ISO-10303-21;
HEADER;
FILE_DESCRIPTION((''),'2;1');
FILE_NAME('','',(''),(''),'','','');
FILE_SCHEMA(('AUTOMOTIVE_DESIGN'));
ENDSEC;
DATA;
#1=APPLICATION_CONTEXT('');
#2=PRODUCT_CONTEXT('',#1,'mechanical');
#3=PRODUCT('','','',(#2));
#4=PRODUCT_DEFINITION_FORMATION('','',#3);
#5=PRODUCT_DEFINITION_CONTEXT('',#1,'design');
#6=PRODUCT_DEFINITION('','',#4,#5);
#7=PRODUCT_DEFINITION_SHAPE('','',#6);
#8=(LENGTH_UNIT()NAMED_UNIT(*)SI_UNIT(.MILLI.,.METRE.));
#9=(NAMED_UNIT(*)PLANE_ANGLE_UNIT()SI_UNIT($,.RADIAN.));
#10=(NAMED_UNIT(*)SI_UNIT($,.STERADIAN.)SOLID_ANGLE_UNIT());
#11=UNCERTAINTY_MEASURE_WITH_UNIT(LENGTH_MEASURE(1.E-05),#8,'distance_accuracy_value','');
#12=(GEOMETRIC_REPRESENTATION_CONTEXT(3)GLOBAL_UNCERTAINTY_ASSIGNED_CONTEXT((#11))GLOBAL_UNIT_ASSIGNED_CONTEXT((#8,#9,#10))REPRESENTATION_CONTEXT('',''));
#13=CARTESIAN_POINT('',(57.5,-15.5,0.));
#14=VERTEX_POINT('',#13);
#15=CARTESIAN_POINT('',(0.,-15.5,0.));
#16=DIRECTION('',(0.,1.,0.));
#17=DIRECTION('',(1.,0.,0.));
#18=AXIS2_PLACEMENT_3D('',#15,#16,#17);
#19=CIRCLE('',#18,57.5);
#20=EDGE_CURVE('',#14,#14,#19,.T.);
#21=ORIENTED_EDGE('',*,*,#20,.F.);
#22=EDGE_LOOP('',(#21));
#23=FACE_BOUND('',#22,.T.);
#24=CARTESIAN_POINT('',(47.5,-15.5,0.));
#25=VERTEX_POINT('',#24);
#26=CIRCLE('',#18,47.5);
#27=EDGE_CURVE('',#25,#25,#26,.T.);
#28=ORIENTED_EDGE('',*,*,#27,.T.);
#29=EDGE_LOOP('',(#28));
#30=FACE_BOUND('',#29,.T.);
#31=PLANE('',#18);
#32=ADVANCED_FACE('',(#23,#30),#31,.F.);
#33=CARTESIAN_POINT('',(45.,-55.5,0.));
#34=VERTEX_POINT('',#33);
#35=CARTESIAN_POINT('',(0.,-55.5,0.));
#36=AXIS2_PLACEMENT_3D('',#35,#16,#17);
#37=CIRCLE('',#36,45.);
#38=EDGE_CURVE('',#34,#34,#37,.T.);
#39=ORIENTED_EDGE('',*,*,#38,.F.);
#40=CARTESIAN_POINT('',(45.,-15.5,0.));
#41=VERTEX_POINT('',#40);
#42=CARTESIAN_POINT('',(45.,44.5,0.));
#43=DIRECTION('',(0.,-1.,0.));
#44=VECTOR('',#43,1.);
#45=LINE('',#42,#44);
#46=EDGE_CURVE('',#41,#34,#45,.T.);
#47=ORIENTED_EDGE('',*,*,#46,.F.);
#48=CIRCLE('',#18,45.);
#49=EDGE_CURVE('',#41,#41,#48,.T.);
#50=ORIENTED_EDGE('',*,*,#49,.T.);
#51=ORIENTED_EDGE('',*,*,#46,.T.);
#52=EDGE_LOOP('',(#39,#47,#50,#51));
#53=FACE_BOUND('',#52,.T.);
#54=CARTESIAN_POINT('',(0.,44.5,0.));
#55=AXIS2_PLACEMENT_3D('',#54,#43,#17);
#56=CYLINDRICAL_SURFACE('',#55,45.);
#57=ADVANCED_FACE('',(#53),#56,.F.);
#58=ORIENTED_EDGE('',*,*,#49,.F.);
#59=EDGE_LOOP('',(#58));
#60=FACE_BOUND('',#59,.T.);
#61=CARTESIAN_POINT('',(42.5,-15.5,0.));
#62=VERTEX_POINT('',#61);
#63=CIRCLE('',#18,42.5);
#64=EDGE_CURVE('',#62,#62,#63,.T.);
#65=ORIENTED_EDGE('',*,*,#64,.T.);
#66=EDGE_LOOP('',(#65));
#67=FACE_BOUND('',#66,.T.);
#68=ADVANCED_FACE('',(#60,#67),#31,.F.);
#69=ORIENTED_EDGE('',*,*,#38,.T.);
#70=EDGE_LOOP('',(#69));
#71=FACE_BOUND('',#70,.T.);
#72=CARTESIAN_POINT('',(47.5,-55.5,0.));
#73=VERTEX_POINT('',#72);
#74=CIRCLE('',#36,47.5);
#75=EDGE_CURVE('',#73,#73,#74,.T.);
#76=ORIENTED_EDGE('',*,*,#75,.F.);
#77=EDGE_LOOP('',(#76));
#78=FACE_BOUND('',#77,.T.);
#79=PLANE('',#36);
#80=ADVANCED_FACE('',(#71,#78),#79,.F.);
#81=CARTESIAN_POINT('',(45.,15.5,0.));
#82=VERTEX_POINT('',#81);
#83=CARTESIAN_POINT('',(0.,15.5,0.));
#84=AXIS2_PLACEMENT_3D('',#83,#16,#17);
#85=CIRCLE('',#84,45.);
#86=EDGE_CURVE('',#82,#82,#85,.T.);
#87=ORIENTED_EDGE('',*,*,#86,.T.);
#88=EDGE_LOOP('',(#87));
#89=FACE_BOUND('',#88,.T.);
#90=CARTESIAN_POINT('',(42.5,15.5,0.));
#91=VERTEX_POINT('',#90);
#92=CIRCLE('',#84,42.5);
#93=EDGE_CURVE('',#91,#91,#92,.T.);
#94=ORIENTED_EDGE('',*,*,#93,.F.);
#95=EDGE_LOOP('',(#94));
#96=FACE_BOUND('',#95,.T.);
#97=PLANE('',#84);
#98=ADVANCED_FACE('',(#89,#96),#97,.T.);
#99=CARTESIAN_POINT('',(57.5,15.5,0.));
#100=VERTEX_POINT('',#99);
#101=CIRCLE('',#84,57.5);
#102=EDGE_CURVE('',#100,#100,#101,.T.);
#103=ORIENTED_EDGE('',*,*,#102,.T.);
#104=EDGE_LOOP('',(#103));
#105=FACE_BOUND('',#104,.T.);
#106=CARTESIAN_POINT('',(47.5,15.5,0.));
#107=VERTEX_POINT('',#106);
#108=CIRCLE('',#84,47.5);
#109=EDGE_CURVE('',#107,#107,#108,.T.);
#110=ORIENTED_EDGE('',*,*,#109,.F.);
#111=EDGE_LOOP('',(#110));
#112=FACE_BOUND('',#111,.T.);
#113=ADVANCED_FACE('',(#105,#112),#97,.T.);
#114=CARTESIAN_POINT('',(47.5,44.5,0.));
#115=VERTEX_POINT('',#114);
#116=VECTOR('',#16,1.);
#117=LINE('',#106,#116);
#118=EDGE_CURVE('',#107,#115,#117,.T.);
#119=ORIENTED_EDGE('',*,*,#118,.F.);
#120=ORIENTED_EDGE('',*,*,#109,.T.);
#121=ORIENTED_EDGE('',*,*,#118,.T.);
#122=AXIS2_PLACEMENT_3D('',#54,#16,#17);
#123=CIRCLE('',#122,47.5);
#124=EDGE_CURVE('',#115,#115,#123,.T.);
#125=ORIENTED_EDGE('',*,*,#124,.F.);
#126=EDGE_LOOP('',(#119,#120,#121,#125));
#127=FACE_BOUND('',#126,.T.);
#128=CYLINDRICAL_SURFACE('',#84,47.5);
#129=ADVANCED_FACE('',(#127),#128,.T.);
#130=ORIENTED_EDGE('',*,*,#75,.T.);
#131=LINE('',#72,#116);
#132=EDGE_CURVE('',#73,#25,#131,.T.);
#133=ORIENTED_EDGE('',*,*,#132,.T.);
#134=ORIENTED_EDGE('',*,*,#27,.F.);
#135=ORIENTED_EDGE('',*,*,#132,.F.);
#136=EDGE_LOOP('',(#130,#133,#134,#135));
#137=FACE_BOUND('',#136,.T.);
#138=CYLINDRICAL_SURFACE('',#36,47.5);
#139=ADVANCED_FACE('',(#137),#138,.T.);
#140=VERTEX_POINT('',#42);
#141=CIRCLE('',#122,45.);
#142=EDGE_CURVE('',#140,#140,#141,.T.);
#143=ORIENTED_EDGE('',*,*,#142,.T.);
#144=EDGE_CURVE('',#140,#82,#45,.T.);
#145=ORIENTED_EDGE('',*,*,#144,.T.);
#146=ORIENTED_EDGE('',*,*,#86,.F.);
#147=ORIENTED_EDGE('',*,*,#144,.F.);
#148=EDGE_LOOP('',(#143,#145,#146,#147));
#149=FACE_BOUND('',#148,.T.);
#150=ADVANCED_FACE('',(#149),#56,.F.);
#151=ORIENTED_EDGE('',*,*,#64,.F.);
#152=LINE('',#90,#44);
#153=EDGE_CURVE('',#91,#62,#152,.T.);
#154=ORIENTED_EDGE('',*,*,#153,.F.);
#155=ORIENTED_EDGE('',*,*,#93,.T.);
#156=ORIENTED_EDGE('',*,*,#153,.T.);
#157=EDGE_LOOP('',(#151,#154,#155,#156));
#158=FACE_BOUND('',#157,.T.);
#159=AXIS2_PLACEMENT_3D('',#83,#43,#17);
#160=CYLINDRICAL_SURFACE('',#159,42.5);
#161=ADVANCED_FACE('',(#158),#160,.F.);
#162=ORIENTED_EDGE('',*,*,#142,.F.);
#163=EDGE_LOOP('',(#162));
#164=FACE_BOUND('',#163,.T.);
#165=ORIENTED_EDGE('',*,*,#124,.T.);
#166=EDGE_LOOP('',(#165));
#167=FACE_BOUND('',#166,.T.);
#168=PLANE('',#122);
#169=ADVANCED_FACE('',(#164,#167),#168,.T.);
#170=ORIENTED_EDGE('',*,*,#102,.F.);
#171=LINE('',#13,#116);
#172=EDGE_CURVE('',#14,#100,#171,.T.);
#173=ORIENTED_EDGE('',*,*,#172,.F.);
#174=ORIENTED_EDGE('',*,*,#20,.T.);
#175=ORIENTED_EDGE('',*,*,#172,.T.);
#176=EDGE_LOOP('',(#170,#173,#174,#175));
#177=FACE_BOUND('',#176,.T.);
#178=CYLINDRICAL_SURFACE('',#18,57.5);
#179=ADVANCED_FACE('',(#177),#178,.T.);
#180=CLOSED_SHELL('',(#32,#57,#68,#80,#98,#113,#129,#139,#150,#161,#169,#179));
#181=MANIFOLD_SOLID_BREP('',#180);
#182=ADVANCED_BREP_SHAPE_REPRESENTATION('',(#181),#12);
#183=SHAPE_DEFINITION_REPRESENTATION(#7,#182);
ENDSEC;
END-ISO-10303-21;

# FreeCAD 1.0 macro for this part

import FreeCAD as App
import Part
import Sketcher

V = App.Vector
Q = App.Units.Quantity


def add_polygon(sketch, points):
    """Adds a closed chain of lines whose ends are joined by coincident constraints."""
    first, n = sketch.GeometryCount, len(points)
    for a, b in zip(points, points[1:] + points[:1]):
        sketch.addGeometry(Part.LineSegment(App.Vector(*a, 0), App.Vector(*b, 0)), False)
    for i in range(n):
        sketch.addConstraint(Sketcher.Constraint("Coincident", first + i, 2, first + (i + 1) % n, 1))

doc = App.newDocument("Part")
params = doc.addObject("Spreadsheet::Sheet", "Params")
for row, (alias, value) in enumerate([
    ("sketch1_height", "29 mm"),
    ("sketch1_height2", "31 mm"),
    ("sketch1_height3", "40 mm"),
    ("revolution_angle", "360 deg"),
], start=1):
    params.set(f"A{row}", alias)
    params.set(f"B{row}", "=" + value)
    params.setAlias(f"B{row}", alias)

body = doc.addObject("PartDesign::Body", "Body")

# Sketch on XY plane
sketch1 = body.newObject("Sketcher::SketchObject", "Sketch")
sketch1.AttachmentSupport = (doc.getObject("XY_Plane"), [""])
sketch1.MapMode = "FlatFace"
add_polygon(sketch1, [(47.5, 44.5), (45, 44.5), (45, 15.5), (42.5, 15.5), (42.5, -15.5), (45, -15.5), (45, -55.5), (47.5, -55.5), (47.5, -15.5), (57.5, -15.5), (57.5, 15.5), (47.5, 15.5)])  # lines 0-11
sketch1.addConstraint(Sketcher.Constraint("Horizontal", 0))
sketch1.addConstraint(Sketcher.Constraint("Vertical", 1))
sketch1.addConstraint(Sketcher.Constraint("Horizontal", 2))
sketch1.addConstraint(Sketcher.Constraint("Vertical", 3))
sketch1.addConstraint(Sketcher.Constraint("Horizontal", 4))
sketch1.addConstraint(Sketcher.Constraint("Vertical", 5))
sketch1.addConstraint(Sketcher.Constraint("Horizontal", 6))
sketch1.addConstraint(Sketcher.Constraint("Vertical", 7))
sketch1.addConstraint(Sketcher.Constraint("Horizontal", 8))
sketch1.addConstraint(Sketcher.Constraint("Vertical", 9))
sketch1.addConstraint(Sketcher.Constraint("Horizontal", 10))
sketch1.addConstraint(Sketcher.Constraint("Vertical", 11))
sketch1.addConstraint(Sketcher.Constraint("Symmetric", 1, 2, 4, 2, -1))
sketch1.addConstraint(Sketcher.Constraint("Symmetric", 7, 2, 10, 2, -1))
sketch1.addConstraint(Sketcher.Constraint("Horizontal", 4, 2, 7, 2))
sketch1.addConstraint(Sketcher.Constraint("Equal", 0, 2))
sketch1.addConstraint(Sketcher.Constraint("DistanceY", 1, 2, 1, 1, Q("29 mm")))
sketch1.addConstraint(Sketcher.Constraint("DistanceY", 3, 2, 3, 1, Q("31 mm")))
sketch1.addConstraint(Sketcher.Constraint("DistanceY", 5, 2, 5, 1, Q("40 mm")))
sketch1.addConstraint(Sketcher.Constraint("DistanceX", -1, 1, 0, 2, Q("45 mm")))
sketch1.addConstraint(Sketcher.Constraint("DistanceX", -1, 1, 2, 2, Q("42.5 mm")))
sketch1.addConstraint(Sketcher.Constraint("DistanceX", -1, 1, 8, 2, Q("57.5 mm")))
sketch1.setExpression("Constraints[28]", "Params.sketch1_height")
sketch1.setExpression("Constraints[29]", "Params.sketch1_height2")
sketch1.setExpression("Constraints[30]", "Params.sketch1_height3")
revolution = body.newObject("PartDesign::Revolution", "Revolution")
revolution.Profile = sketch1
revolution.ReferenceAxis = (sketch1, ["V_Axis"])
revolution.setExpression("Angle", "Params.revolution_angle")

doc.recompute()
